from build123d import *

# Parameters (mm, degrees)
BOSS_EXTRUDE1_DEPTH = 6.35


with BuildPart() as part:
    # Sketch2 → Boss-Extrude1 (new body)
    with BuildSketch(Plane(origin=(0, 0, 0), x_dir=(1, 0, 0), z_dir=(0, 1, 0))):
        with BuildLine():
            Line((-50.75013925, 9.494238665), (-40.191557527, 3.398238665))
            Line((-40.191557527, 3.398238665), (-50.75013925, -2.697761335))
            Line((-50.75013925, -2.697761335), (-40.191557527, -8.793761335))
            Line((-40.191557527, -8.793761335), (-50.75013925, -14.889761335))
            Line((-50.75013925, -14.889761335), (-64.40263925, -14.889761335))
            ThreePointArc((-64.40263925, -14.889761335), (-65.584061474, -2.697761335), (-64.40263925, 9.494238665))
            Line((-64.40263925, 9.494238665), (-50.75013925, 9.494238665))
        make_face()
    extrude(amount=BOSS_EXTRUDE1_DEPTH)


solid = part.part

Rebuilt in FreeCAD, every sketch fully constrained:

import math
import FreeCAD as App
import Part
import Sketcher
Q = App.Units.Quantity

doc = App.newDocument("Part")
body = doc.addObject("PartDesign::Body", "Body")

# Sketch on XZ plane
sketch1 = body.newObject("Sketcher::SketchObject", "Sketch")
sketch1.AttachmentSupport = (doc.getObject("XZ_Plane"), [""])
sketch1.MapMode = "FlatFace"
sketch1.addGeometry([
    Part.LineSegment(App.Vector(-40, -3, 0), App.Vector(-51, -9, 0)),  # 0
    Part.LineSegment(App.Vector(-51, -9, 0), App.Vector(-64, -9, 0)),  # 1
    Part.ArcOfCircle(Part.Circle(App.Vector(-2, 3, 0), App.Vector(0, 0, 1), 64), math.radians(169), math.radians(191)),  # 2
    Part.LineSegment(App.Vector(-64, 15, 0), App.Vector(-51, 15, 0)),  # 3
    Part.LineSegment(App.Vector(-51, 15, 0), App.Vector(-40, 9, 0)),  # 4
    Part.LineSegment(App.Vector(-40, 9, 0), App.Vector(-51, 3, 0)),  # 5
    Part.LineSegment(App.Vector(-51, 3, 0), App.Vector(-40, -3, 0)),  # 6
], False)
sketch1.addConstraint([
    Sketcher.Constraint("Coincident", 0, 2, 1, 1),
    Sketcher.Constraint("Coincident", 1, 2, 2, 2),
    Sketcher.Constraint("Coincident", 2, 1, 3, 1),
    Sketcher.Constraint("Coincident", 3, 2, 4, 1),
    Sketcher.Constraint("Coincident", 4, 2, 5, 1),
    Sketcher.Constraint("Coincident", 5, 2, 6, 1),
    Sketcher.Constraint("Coincident", 6, 2, 0, 1),
    Sketcher.Constraint("Horizontal", 1),
    Sketcher.Constraint("Horizontal", 3),
    Sketcher.Constraint("Parallel", 0, 5),
    Sketcher.Constraint("Parallel", 4, 6),
    Sketcher.Constraint("Horizontal", 2, 3, 5, 2),
    Sketcher.Constraint("Vertical", 1, 2, 2, 1),
    Sketcher.Constraint("Vertical", 0, 2, 3, 2),
    Sketcher.Constraint("Vertical", 3, 2, 5, 2),
    Sketcher.Constraint("Equal", 0, 4),
    Sketcher.Constraint("Radius", 2, Q("2.5 in")),
    Sketcher.Constraint("Angle", 0, Q("-150 deg")),
    Sketcher.Constraint("Distance", 0, Q("0.48 in")),
    Sketcher.Constraint("DistanceX", 1, 2, 1, 1, Q("0.5375 in")),
    Sketcher.Constraint("DistanceX", 2, 3, -1, 1, 2.084061),
    Sketcher.Constraint("DistanceY", -1, 1, 2, 3, 2.697761),
])
pad1 = body.newObject("PartDesign::Pad", "Pad")
pad1.Profile = sketch1
pad1.Length = Q("0.25 in")
pad1.Reversed = True

doc.recompute()
